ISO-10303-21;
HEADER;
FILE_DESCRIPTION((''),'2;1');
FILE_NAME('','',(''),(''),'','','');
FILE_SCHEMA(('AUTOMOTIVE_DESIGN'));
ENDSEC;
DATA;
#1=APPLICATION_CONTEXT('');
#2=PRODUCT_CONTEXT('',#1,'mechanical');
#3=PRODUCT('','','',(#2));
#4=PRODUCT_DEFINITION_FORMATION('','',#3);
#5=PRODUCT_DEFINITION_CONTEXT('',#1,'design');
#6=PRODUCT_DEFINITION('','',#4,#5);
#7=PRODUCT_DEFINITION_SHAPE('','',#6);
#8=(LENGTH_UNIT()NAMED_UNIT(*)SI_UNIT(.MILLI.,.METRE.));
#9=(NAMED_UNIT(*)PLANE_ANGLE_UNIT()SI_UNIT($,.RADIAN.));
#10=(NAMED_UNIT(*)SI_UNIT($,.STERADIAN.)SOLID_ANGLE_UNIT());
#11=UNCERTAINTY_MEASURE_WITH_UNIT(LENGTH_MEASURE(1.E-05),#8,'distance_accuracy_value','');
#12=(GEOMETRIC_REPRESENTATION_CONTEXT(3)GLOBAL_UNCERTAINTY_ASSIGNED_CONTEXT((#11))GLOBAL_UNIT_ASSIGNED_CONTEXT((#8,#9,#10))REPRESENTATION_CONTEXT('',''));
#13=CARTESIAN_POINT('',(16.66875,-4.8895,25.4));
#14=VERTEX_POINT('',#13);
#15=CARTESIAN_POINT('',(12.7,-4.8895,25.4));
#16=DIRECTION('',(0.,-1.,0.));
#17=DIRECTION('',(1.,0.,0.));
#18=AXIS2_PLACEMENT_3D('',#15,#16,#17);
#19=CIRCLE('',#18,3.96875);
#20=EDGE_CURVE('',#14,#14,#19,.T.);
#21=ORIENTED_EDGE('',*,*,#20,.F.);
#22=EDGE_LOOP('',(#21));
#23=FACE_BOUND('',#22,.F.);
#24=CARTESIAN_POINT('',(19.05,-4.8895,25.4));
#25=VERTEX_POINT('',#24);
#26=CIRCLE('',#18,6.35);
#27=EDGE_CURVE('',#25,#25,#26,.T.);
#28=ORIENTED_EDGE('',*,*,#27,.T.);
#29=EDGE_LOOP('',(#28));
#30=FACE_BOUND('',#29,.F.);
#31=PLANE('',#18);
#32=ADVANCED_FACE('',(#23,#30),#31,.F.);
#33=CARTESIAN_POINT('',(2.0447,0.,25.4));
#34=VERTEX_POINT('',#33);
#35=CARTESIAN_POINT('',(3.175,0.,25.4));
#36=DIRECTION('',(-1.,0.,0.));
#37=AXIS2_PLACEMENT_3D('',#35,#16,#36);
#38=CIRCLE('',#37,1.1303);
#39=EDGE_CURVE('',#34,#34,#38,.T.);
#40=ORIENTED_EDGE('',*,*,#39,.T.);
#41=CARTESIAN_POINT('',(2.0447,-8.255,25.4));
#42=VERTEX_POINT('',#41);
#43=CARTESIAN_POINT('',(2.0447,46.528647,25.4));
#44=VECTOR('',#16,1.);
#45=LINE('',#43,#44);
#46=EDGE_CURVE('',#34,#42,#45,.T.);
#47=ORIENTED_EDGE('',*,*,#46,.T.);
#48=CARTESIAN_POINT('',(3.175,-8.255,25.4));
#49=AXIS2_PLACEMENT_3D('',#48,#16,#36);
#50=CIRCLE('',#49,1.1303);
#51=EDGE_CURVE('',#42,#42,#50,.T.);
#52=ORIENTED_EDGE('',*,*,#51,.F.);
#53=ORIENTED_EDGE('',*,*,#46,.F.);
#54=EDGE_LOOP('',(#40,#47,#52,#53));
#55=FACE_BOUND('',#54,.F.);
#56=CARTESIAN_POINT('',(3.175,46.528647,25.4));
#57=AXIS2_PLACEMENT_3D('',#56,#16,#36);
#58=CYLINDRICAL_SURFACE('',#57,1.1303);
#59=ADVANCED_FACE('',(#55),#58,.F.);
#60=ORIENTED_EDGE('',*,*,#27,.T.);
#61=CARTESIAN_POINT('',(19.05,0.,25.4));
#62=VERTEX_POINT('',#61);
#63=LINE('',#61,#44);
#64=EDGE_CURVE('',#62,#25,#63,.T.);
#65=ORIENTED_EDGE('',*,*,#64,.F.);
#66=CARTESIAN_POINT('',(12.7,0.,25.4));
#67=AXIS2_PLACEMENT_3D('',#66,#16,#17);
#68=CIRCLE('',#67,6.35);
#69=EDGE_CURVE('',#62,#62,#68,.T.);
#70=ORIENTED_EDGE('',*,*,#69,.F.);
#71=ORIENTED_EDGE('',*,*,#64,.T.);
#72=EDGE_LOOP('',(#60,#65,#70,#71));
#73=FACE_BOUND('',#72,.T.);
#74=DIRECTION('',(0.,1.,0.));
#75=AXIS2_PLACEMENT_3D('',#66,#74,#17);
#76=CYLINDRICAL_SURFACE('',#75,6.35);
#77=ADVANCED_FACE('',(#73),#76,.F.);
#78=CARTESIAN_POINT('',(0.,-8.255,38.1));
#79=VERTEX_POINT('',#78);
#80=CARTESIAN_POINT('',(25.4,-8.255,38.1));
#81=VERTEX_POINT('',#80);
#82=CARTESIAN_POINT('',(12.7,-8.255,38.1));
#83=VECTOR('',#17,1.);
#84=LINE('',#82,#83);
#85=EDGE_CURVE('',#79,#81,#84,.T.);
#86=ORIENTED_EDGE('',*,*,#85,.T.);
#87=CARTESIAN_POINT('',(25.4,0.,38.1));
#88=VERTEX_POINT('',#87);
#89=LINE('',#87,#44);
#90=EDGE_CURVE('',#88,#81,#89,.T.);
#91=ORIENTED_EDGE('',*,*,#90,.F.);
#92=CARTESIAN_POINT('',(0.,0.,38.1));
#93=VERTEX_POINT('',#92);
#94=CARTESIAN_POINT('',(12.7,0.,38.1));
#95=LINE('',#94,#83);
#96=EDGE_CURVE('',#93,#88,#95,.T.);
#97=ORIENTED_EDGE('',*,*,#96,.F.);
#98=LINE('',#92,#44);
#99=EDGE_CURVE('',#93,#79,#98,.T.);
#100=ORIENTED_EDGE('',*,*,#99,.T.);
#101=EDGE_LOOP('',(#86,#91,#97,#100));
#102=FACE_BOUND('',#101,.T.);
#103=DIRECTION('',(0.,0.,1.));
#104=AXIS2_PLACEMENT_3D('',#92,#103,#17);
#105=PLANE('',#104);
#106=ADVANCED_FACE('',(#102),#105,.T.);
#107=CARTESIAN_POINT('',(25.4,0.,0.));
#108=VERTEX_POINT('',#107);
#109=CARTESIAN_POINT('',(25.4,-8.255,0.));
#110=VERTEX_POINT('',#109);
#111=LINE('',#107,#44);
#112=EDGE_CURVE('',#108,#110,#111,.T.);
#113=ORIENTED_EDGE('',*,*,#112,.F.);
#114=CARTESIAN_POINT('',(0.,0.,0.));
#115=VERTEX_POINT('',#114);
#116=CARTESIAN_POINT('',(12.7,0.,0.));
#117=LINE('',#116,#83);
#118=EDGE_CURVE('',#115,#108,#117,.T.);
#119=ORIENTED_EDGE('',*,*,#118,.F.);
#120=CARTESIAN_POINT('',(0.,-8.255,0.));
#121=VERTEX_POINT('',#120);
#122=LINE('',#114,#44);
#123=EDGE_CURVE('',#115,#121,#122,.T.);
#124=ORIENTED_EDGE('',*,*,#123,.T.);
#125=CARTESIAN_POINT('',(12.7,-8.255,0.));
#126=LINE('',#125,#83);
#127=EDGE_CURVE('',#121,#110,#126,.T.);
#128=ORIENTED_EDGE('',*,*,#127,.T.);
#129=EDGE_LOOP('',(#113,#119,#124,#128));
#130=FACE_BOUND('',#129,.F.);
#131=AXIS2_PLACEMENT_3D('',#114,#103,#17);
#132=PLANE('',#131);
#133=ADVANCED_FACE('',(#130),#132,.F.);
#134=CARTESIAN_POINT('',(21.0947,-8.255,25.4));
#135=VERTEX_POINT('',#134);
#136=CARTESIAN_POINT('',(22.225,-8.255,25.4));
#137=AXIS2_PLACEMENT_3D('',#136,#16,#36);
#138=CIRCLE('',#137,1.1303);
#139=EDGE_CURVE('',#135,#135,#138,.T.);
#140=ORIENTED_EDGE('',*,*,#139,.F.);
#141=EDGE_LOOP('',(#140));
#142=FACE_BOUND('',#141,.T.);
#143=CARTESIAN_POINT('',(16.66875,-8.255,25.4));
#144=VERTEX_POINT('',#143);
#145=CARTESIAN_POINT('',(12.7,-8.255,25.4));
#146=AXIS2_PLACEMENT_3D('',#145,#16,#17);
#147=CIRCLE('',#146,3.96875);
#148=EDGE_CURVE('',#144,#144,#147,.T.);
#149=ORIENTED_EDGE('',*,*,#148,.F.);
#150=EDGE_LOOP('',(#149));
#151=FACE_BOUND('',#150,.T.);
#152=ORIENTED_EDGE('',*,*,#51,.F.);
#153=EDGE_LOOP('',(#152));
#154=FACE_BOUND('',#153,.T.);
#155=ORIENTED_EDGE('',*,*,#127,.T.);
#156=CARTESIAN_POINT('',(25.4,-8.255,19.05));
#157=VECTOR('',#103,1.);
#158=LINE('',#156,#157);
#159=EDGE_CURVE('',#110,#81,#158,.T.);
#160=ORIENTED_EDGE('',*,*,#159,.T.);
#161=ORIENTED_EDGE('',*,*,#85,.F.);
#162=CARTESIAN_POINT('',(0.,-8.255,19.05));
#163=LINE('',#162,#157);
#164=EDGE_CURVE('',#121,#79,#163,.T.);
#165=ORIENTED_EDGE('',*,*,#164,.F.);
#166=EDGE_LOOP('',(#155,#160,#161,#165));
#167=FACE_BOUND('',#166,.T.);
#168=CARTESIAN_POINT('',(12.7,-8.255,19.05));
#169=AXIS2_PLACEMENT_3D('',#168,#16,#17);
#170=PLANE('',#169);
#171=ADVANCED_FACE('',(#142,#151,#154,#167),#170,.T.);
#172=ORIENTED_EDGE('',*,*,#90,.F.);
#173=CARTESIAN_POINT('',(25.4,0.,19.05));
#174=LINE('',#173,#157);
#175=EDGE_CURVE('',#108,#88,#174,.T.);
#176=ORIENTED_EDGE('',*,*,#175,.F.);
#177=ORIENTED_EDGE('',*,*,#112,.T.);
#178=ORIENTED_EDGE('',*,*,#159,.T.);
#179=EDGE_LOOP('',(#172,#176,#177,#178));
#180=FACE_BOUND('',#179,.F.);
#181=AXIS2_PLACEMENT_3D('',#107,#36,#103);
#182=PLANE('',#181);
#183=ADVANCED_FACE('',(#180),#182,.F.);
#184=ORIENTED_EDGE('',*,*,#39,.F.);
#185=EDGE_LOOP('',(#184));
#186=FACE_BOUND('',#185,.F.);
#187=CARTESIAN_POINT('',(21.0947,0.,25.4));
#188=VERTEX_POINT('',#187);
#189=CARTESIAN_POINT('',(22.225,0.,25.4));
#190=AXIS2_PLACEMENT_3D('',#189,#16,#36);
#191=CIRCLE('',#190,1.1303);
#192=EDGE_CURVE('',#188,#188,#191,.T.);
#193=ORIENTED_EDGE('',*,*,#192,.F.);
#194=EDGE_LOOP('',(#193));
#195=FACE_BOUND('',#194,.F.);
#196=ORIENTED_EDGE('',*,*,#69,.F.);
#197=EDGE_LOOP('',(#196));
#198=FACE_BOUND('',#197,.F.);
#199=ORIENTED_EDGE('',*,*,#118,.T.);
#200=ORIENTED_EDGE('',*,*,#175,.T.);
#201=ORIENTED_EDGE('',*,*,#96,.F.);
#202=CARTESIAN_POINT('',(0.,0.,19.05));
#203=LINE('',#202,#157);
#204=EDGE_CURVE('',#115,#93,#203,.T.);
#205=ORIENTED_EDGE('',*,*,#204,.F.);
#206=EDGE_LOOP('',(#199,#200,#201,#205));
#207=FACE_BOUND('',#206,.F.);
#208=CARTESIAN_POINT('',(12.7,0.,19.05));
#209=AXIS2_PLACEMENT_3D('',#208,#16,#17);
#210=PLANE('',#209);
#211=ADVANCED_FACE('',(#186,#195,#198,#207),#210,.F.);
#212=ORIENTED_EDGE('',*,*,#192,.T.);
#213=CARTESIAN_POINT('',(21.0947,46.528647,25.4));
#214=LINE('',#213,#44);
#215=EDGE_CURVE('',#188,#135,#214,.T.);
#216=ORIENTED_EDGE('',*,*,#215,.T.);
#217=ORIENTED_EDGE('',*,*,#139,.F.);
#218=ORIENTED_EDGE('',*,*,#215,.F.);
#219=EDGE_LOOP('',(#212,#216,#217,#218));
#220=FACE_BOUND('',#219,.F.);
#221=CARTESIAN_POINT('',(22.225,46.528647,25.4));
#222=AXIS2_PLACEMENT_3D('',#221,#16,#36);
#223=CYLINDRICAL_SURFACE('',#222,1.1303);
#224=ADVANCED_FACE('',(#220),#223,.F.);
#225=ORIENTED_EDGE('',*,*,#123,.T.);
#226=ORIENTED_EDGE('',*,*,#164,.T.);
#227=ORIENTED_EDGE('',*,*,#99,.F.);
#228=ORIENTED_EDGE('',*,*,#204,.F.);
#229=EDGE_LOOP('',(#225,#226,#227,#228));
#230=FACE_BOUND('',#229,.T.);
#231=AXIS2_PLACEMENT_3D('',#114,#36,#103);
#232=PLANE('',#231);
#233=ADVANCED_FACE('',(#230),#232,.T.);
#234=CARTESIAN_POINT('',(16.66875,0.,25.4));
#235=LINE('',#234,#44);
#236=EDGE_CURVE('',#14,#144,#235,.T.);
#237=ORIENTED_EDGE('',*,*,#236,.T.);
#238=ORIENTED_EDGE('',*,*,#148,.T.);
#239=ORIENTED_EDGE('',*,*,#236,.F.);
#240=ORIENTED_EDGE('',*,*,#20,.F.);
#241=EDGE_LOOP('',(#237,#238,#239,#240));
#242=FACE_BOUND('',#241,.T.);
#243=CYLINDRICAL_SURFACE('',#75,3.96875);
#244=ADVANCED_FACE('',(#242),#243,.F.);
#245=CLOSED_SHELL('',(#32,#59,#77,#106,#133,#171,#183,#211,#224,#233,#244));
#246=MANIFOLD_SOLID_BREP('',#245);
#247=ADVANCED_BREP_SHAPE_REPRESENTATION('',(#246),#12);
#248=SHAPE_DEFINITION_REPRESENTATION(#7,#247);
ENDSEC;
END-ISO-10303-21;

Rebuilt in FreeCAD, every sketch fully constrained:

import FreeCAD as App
import Part
import Sketcher

V = App.Vector
Q = App.Units.Quantity

doc = App.newDocument("Part")
body = doc.addObject("PartDesign::Body", "Body")

sketch1 = body.newObject("Sketcher::SketchObject", "Sketch")
sketch1.AttachmentSupport = (doc.getObject("XZ_Plane"), [""])
sketch1.MapMode = "FlatFace"
sketch1.addGeometry([
    Part.LineSegment(V(0, 38.1, 0), V(0, 0, 0)),
    Part.LineSegment(V(0, 0, 0), V(25.4, 0, 0)),
    Part.LineSegment(V(25.4, 0, 0), V(25.4, 38.1, 0)),
    Part.LineSegment(V(25.4, 38.1, 0), V(0, 38.1, 0)),
    Part.Circle(V(12.7, 25.4, 0), V(0, 0, 1), 4),
], False)
sketch1.addConstraint([
    Sketcher.Constraint("Coincident", 0, 2, 1, 1),
    Sketcher.Constraint("Coincident", 1, 2, 2, 1),
    Sketcher.Constraint("Coincident", 2, 2, 3, 1),
    Sketcher.Constraint("Coincident", 3, 2, 0, 1),
    Sketcher.Constraint("Vertical", 0),
    Sketcher.Constraint("Horizontal", 1),
    Sketcher.Constraint("Vertical", 2),
    Sketcher.Constraint("Horizontal", 3),
    Sketcher.Constraint("Coincident", 0, 2, -1, 1),
    Sketcher.Constraint("DistanceX", 1, 1, 1, 2, Q("1 in")),
    Sketcher.Constraint("Diameter", 4, Q("0.3125 in")),
    Sketcher.Constraint("DistanceY", 0, 2, 0, 1, Q("1.5 in")),
    Sketcher.Constraint("DistanceY", -1, 1, 4, 3, Q("1 in")),
    Sketcher.Constraint("DistanceX", -1, 1, 4, 3, Q("0.5 in")),
])
pad1 = body.newObject("PartDesign::Pad", "Pad")
pad1.Profile = sketch1
pad1.Length = Q("0.325 in")

sketch2 = body.newObject("Sketcher::SketchObject", "Sketch001")
sketch2.AttachmentSupport = (doc.getObject("XZ_Plane"), [""])
sketch2.MapMode = "FlatFace"
sketch2.addGeometry([
    Part.Circle(V(12.7, 25.4, 0), V(0, 0, 1), 6.3),
    Part.Circle(V(12.7, 25.4, 0), V(0, 0, 1), 4),
], False)
sketch2.addConstraint([
    Sketcher.Constraint("Coincident", 1, 3, 0, 3),
    Sketcher.Constraint("Diameter", 0, Q("0.5 in")),
    Sketcher.Constraint("Diameter", 1, Q("0.3125 in")),
    Sketcher.Constraint("DistanceY", -1, 1, 0, 3, Q("1 in")),
    Sketcher.Constraint("DistanceX", -1, 1, 0, 3, Q("0.5 in")),
])
pocket1 = body.newObject("PartDesign::Pocket", "Pocket")
pocket1.Profile = sketch2
pocket1.Length = Q("0.1925 in")
pocket1.Reversed = True

sketch3 = body.newObject("Sketcher::SketchObject", "Sketch002")
sketch3.AttachmentSupport = (doc.getObject("XZ_Plane"), [""])
sketch3.MapMode = "FlatFace"
sketch3.addGeometry([
    Part.Circle(V(22.2, 25.4, 0), V(0, 0, 1), 1.1),
    Part.Circle(V(3.2, 25.4, 0), V(0, 0, 1), 1.1),
], False)
sketch3.addConstraint([
    Sketcher.Constraint("Equal", 0, 1),
    Sketcher.Constraint("Horizontal", 0, 3, 1, 3),
    Sketcher.Constraint("Diameter", 0, Q("0.089 in")),
    Sketcher.Constraint("DistanceY", -1, 1, 0, 3, Q("1 in")),
    Sketcher.Constraint("DistanceX", 1, 3, 0, 3, Q("0.75 in")),
    Sketcher.Constraint("DistanceX", -1, 1, 0, 3, Q("0.875 in")),
])
doc.recompute()
hole = body.newObject("PartDesign::Hole", "Hole")
hole.Profile = sketch3
hole.ThreadType = "None"
hole.Diameter = Q("0.089 in")
hole.DepthType = "ThroughAll"
hole.Reversed = True

doc.recompute()
